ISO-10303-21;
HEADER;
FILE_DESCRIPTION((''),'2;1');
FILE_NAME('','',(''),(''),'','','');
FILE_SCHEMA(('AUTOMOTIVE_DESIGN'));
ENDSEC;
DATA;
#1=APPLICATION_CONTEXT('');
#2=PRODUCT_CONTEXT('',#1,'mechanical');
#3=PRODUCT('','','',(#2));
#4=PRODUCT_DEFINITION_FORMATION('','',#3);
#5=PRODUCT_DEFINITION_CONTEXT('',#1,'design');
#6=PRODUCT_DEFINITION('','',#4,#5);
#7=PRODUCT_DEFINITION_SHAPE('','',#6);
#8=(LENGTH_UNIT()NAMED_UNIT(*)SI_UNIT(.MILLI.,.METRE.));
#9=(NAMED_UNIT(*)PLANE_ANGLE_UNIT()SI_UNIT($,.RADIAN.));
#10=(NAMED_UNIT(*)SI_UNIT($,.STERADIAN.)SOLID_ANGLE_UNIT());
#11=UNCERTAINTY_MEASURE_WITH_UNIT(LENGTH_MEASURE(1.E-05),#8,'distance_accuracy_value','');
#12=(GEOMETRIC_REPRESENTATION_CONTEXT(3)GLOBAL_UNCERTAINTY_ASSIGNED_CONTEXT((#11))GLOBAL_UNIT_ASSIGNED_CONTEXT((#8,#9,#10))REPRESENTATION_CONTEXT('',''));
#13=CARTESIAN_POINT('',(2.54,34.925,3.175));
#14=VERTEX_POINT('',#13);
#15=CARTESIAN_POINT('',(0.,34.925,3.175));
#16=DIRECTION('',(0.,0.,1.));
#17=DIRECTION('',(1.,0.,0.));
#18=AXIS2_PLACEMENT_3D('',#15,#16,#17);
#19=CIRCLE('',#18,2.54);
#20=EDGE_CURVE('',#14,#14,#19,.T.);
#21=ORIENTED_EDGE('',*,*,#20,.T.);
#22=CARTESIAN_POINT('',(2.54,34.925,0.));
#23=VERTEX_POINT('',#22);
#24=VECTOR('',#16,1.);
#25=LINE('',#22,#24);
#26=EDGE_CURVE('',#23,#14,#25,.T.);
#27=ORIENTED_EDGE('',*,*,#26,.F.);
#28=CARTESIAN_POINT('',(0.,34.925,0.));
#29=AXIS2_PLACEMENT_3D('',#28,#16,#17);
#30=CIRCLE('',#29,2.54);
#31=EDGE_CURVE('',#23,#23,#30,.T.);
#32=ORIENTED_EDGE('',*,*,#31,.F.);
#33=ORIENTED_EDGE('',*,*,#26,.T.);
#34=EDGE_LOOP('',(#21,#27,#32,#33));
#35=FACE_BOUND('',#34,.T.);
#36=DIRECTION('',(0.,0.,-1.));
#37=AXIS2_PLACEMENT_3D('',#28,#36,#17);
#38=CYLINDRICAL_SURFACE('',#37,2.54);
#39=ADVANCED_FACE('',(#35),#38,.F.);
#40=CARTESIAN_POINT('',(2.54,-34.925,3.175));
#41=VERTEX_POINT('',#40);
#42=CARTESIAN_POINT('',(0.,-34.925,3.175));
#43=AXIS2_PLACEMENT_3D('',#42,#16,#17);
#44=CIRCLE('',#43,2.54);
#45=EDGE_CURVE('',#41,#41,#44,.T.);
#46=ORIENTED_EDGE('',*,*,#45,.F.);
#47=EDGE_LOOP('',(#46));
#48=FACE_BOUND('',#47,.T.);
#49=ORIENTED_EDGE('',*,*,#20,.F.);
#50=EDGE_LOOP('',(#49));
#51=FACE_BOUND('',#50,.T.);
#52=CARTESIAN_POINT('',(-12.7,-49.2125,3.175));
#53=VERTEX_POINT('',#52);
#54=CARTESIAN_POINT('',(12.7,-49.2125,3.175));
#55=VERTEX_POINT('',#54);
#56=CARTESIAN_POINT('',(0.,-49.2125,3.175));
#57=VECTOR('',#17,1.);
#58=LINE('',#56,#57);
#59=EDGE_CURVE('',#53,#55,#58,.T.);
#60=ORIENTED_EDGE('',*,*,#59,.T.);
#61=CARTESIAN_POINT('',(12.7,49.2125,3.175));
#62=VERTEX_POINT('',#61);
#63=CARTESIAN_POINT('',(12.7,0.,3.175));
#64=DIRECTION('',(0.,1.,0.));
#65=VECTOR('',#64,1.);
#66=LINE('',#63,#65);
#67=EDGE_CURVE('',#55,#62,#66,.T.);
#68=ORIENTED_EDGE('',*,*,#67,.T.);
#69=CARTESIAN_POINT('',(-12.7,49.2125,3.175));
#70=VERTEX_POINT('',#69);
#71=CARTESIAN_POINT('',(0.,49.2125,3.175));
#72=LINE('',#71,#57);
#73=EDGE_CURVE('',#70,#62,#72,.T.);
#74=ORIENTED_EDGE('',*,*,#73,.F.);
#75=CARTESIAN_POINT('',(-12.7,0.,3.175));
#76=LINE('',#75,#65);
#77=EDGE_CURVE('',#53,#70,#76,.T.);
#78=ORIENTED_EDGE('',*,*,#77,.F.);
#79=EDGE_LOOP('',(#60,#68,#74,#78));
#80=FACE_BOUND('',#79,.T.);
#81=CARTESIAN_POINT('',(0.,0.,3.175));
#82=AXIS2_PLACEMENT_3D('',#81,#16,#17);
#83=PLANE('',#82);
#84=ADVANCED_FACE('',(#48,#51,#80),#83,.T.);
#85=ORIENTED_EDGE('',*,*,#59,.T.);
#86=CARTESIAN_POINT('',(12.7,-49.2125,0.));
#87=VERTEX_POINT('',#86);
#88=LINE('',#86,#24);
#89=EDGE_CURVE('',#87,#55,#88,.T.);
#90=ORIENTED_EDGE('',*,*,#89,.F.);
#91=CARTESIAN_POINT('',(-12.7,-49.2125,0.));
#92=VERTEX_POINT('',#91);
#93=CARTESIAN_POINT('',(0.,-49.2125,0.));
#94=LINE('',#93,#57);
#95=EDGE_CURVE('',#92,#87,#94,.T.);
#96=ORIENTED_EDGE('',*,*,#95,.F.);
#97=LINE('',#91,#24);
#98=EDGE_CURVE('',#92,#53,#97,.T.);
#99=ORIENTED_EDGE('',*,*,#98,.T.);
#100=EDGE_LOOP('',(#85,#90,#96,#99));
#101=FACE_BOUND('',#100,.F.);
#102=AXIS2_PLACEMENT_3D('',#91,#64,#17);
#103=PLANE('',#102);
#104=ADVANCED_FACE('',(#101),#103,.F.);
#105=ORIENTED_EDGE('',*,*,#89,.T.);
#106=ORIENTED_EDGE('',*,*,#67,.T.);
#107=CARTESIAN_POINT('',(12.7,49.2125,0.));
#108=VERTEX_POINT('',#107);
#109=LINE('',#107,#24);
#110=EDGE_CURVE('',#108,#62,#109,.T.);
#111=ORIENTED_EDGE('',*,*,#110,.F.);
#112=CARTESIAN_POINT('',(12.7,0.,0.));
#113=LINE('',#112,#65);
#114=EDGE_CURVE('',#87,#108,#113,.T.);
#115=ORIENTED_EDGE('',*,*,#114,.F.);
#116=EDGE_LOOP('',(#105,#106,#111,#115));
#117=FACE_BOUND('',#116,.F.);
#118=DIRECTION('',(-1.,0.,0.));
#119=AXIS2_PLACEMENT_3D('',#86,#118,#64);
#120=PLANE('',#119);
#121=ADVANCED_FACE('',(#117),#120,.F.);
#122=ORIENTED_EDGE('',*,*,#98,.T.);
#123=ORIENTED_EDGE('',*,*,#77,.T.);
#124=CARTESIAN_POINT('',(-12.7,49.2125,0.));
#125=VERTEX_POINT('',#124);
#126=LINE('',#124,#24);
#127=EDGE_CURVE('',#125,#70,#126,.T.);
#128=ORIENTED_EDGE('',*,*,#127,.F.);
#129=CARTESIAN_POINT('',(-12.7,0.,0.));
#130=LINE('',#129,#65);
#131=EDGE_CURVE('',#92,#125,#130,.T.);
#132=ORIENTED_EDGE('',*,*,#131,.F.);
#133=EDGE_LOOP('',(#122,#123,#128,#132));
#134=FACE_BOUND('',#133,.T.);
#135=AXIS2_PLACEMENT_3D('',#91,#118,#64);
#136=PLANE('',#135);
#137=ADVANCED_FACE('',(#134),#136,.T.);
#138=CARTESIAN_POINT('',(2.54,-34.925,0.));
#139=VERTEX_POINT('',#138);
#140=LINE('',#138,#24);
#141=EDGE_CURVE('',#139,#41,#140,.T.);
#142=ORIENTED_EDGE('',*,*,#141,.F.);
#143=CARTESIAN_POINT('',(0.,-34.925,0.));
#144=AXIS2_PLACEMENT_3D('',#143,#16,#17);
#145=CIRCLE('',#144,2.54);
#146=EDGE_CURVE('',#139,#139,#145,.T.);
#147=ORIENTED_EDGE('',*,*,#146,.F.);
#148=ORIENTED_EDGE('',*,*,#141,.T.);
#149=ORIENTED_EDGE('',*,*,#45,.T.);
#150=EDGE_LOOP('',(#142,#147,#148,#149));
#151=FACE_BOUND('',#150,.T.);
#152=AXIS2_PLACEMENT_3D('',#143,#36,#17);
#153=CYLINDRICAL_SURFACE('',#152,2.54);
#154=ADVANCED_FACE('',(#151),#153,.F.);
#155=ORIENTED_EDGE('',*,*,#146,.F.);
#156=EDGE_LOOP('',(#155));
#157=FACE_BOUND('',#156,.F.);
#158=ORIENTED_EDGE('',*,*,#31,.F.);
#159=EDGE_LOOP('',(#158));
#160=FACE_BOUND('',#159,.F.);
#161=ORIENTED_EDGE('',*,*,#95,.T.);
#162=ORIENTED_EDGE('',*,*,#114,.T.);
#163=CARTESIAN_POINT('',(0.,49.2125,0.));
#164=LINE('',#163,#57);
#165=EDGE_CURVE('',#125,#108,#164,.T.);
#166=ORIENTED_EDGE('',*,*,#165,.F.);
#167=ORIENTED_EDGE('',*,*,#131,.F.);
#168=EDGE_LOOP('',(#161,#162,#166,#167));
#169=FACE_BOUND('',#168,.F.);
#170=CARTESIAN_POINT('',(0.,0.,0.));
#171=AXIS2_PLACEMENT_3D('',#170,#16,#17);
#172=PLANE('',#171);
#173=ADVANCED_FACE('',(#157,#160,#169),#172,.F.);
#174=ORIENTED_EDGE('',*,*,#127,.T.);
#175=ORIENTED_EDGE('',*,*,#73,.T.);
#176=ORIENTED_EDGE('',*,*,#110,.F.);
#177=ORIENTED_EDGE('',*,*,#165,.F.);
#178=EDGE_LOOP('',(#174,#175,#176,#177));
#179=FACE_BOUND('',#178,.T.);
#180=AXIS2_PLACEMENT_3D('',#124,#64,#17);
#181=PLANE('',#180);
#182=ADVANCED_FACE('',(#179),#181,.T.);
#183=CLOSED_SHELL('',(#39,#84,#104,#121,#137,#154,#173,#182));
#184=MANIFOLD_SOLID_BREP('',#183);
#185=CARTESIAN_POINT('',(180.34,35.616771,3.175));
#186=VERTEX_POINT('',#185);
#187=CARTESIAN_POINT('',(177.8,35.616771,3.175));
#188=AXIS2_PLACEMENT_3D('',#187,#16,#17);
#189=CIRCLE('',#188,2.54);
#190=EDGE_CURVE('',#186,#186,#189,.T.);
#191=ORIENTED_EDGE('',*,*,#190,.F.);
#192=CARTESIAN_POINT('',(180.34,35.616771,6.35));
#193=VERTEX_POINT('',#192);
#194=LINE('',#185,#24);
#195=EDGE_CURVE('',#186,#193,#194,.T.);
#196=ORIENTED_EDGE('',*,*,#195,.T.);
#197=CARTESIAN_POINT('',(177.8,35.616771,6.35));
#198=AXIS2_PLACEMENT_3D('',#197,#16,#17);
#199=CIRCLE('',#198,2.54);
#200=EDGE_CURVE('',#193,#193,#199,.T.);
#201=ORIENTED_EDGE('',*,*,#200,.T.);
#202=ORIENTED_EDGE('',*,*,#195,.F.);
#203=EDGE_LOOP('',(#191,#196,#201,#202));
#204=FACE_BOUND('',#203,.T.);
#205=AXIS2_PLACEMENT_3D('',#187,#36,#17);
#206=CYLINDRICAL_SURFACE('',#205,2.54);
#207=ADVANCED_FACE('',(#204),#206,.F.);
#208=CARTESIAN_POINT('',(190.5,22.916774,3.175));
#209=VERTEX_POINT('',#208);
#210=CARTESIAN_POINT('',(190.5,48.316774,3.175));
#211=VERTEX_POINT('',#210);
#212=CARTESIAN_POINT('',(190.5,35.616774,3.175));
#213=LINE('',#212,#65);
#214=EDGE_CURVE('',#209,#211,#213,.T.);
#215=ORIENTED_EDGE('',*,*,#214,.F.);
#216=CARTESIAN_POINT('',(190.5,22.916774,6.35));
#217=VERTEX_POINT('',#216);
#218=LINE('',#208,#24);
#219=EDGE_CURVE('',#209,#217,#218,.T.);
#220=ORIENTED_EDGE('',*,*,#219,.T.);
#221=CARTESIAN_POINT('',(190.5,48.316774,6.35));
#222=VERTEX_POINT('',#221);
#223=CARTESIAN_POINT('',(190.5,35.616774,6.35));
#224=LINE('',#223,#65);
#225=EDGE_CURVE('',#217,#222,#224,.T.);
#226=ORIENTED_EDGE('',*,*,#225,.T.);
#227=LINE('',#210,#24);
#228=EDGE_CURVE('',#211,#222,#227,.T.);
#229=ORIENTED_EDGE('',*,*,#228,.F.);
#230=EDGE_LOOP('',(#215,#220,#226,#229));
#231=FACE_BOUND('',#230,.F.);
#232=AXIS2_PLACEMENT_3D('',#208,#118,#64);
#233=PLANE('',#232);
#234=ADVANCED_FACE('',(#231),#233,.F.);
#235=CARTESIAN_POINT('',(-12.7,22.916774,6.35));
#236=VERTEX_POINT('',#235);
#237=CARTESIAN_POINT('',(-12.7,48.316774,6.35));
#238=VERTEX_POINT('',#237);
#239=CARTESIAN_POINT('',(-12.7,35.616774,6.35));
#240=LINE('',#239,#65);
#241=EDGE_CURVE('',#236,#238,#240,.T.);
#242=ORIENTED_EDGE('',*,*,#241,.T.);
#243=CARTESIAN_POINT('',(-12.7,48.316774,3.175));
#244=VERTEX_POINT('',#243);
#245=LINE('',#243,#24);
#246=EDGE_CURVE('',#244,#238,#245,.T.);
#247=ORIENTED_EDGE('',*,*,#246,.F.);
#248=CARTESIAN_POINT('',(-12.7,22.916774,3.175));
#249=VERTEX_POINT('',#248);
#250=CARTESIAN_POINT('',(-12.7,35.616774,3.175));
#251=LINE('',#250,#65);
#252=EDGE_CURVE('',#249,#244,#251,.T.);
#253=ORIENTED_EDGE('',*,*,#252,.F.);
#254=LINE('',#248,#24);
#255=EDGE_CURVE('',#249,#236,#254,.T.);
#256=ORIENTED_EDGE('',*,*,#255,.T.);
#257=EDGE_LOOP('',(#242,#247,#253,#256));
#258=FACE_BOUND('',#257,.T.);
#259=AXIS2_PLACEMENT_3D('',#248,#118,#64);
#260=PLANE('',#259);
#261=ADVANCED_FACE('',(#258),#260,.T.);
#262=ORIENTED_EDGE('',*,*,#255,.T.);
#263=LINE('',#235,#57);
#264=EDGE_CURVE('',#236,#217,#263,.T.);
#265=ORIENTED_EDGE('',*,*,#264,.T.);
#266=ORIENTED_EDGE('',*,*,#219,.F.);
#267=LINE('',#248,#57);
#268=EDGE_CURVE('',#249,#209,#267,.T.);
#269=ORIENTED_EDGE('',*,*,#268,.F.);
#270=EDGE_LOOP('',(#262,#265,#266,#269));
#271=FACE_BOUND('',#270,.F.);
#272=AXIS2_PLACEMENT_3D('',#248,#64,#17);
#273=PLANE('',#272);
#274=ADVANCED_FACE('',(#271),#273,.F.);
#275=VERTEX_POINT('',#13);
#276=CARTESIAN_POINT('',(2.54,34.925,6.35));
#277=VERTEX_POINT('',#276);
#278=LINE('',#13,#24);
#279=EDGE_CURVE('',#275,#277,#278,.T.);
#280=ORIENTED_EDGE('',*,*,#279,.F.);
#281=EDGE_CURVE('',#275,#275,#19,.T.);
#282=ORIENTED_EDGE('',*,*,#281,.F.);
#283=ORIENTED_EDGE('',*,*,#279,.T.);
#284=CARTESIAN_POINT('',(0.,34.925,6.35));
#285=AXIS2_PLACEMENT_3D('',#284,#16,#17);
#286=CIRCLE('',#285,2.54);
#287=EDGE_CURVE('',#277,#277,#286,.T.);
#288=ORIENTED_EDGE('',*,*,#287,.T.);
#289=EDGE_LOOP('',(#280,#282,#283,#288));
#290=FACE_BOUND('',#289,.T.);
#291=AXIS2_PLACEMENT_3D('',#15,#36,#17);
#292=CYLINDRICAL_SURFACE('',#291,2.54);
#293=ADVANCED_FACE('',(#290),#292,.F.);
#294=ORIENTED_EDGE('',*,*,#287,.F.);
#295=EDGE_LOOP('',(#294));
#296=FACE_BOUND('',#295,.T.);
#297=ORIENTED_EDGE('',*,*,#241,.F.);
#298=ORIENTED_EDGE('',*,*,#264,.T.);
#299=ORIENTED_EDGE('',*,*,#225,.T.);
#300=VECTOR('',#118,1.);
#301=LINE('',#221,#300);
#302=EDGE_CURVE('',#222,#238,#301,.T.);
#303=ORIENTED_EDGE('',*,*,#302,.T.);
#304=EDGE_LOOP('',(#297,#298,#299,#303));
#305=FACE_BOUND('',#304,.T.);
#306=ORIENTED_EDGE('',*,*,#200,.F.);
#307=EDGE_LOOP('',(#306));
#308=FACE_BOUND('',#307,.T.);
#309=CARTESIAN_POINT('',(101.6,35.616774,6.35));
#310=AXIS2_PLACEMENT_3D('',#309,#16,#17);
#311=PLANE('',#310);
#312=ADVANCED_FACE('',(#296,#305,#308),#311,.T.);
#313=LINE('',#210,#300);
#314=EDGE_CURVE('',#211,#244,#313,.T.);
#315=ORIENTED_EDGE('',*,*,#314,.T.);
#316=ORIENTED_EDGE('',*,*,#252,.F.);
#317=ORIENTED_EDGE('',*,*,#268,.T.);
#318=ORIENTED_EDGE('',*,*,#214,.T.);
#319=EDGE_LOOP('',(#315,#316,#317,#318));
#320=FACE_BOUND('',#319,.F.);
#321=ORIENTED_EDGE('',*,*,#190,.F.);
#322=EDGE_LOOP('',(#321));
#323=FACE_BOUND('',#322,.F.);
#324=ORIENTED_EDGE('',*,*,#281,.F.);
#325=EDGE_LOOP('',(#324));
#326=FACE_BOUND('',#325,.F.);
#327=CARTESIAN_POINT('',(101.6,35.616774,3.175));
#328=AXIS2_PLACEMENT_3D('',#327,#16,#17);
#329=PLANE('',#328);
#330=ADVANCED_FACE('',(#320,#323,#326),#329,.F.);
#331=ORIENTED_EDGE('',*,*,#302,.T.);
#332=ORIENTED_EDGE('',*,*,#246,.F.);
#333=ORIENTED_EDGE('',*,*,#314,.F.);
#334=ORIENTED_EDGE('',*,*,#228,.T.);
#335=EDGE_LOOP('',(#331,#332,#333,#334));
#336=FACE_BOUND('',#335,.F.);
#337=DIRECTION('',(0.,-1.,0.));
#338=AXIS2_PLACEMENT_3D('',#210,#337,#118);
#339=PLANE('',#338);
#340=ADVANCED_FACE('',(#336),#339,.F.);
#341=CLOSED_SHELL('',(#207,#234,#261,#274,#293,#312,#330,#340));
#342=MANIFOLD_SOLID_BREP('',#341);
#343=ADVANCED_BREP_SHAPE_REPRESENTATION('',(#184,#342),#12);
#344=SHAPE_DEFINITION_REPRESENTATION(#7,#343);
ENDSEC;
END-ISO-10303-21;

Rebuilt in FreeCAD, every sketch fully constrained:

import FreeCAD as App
import Part
import Sketcher
Q = App.Units.Quantity


def add_polygon(sketch, points):
    """Adds a closed chain of lines whose ends are joined by coincident constraints."""
    first, n = sketch.GeometryCount, len(points)
    for a, b in zip(points, points[1:] + points[:1]):
        sketch.addGeometry(Part.LineSegment(App.Vector(*a, 0), App.Vector(*b, 0)), False)
    for i in range(n):
        sketch.addConstraint(Sketcher.Constraint("Coincident", first + i, 2, first + (i + 1) % n, 1))

doc = App.newDocument("Part")
body = doc.addObject("PartDesign::Body", "Body")

# Sketch on XY plane
sketch1 = doc.addObject("Sketcher::SketchObject", "Sketch")
body.addObject(sketch1)
sketch1.AttachmentSupport = (doc.XY_Plane, [""])
sketch1.MapMode = "FlatFace"
add_polygon(sketch1, [(-12.7, 49.2), (-12.7, -49.2), (12.7, -49.2), (12.7, 49.2)])  # lines 0-3
sketch1.addGeometry(Part.Circle(App.Vector(0, -34.9, 0), App.Vector(0, 0, 1), 2.5), False)  # 4
sketch1.addGeometry(Part.Circle(App.Vector(0, 34.9, 0), App.Vector(0, 0, 1), 2.5), False)  # 5
sketch1.addConstraint(Sketcher.Constraint("Vertical", 0))
sketch1.addConstraint(Sketcher.Constraint("Horizontal", 1))
sketch1.addConstraint(Sketcher.Constraint("Vertical", 2))
sketch1.addConstraint(Sketcher.Constraint("Horizontal", 3))
sketch1.addConstraint(Sketcher.Constraint("Equal", 4, 5))
sketch1.addConstraint(Sketcher.Constraint("Symmetric", 4, 3, 5, 3, -1, 1))
sketch1.addConstraint(Sketcher.Constraint("Symmetric", 0, 2, 2, 2, -1, 1))
sketch1.addConstraint(Sketcher.Constraint("PointOnObject", 4, 3, -2))
sketch1.addConstraint(Sketcher.Constraint("Diameter", 4, Q("0.2 in")))
sketch1.addConstraint(Sketcher.Constraint("DistanceX", 1, 1, 1, 2, Q("1 in")))
sketch1.addConstraint(Sketcher.Constraint("DistanceY", 0, 2, 0, 1, Q("3.875 in")))
sketch1.addConstraint(Sketcher.Constraint("DistanceY", 4, 3, 5, 3, Q("2.75 in")))
pad1 = doc.addObject("PartDesign::Pad", "Pad")
body.addObject(pad1)
pad1.Profile = sketch1
pad1.Length = Q("0.125 in")
body2 = doc.addObject("PartDesign::Body", "Body001")

# Sketch on XY plane
sketch2 = doc.addObject("Sketcher::SketchObject", "Sketch001")
body2.addObject(sketch2)
sketch2.AttachmentSupport = (doc.getObject("XY_Plane001"), [""])
sketch2.MapMode = "FlatFace"
sketch2.AttachmentOffset = App.Placement(App.Vector(0, 0, 0.125 * 25.4), App.Rotation())
add_polygon(sketch2, [(190.5, 22.9), (190.5, 48.3), (-12.7, 48.3), (-12.7, 22.9)])  # lines 0-3
sketch2.addGeometry(Part.Circle(App.Vector(0, 34.9, 0), App.Vector(0, 0, 1), 2.5), False)  # 4
sketch2.addGeometry(Part.Circle(App.Vector(177.8, 35.6, 0), App.Vector(0, 0, 1), 2.5), False)  # 5
sketch2.addConstraint(Sketcher.Constraint("Vertical", 0))
sketch2.addConstraint(Sketcher.Constraint("Horizontal", 1))
sketch2.addConstraint(Sketcher.Constraint("Vertical", 2))
sketch2.addConstraint(Sketcher.Constraint("Horizontal", 3))
sketch2.addConstraint(Sketcher.Constraint("Equal", 4, 5))
sketch2.addConstraint(Sketcher.Constraint("PointOnObject", 4, 3, -2))
sketch2.addConstraint(Sketcher.Constraint("Diameter", 4, Q("0.2 in")))
sketch2.addConstraint(Sketcher.Constraint("DistanceX", 1, 2, 1, 1, Q("8 in")))
sketch2.addConstraint(Sketcher.Constraint("DistanceY", 0, 1, 0, 2, Q("1 in")))
sketch2.addConstraint(Sketcher.Constraint("DistanceX", -1, 1, 5, 3, Q("7 in")))
sketch2.addConstraint(Sketcher.Constraint("DistanceX", -1, 1, 0, 2, Q("7.5 in")))
sketch2.addConstraint(Sketcher.Constraint("DistanceY", 5, 3, 0, 2, Q("0.5000001 in")))
sketch2.addConstraint(Sketcher.Constraint("DistanceY", -1, 1, 4, 3, Q("1.375 in")))
sketch2.addConstraint(Sketcher.Constraint("DistanceY", -1, 1, 5, 3, 35.616771))
pad2 = doc.addObject("PartDesign::Pad", "Pad001")
body2.addObject(pad2)
pad2.Profile = sketch2
pad2.Length = Q("0.125 in")

doc.recompute()
